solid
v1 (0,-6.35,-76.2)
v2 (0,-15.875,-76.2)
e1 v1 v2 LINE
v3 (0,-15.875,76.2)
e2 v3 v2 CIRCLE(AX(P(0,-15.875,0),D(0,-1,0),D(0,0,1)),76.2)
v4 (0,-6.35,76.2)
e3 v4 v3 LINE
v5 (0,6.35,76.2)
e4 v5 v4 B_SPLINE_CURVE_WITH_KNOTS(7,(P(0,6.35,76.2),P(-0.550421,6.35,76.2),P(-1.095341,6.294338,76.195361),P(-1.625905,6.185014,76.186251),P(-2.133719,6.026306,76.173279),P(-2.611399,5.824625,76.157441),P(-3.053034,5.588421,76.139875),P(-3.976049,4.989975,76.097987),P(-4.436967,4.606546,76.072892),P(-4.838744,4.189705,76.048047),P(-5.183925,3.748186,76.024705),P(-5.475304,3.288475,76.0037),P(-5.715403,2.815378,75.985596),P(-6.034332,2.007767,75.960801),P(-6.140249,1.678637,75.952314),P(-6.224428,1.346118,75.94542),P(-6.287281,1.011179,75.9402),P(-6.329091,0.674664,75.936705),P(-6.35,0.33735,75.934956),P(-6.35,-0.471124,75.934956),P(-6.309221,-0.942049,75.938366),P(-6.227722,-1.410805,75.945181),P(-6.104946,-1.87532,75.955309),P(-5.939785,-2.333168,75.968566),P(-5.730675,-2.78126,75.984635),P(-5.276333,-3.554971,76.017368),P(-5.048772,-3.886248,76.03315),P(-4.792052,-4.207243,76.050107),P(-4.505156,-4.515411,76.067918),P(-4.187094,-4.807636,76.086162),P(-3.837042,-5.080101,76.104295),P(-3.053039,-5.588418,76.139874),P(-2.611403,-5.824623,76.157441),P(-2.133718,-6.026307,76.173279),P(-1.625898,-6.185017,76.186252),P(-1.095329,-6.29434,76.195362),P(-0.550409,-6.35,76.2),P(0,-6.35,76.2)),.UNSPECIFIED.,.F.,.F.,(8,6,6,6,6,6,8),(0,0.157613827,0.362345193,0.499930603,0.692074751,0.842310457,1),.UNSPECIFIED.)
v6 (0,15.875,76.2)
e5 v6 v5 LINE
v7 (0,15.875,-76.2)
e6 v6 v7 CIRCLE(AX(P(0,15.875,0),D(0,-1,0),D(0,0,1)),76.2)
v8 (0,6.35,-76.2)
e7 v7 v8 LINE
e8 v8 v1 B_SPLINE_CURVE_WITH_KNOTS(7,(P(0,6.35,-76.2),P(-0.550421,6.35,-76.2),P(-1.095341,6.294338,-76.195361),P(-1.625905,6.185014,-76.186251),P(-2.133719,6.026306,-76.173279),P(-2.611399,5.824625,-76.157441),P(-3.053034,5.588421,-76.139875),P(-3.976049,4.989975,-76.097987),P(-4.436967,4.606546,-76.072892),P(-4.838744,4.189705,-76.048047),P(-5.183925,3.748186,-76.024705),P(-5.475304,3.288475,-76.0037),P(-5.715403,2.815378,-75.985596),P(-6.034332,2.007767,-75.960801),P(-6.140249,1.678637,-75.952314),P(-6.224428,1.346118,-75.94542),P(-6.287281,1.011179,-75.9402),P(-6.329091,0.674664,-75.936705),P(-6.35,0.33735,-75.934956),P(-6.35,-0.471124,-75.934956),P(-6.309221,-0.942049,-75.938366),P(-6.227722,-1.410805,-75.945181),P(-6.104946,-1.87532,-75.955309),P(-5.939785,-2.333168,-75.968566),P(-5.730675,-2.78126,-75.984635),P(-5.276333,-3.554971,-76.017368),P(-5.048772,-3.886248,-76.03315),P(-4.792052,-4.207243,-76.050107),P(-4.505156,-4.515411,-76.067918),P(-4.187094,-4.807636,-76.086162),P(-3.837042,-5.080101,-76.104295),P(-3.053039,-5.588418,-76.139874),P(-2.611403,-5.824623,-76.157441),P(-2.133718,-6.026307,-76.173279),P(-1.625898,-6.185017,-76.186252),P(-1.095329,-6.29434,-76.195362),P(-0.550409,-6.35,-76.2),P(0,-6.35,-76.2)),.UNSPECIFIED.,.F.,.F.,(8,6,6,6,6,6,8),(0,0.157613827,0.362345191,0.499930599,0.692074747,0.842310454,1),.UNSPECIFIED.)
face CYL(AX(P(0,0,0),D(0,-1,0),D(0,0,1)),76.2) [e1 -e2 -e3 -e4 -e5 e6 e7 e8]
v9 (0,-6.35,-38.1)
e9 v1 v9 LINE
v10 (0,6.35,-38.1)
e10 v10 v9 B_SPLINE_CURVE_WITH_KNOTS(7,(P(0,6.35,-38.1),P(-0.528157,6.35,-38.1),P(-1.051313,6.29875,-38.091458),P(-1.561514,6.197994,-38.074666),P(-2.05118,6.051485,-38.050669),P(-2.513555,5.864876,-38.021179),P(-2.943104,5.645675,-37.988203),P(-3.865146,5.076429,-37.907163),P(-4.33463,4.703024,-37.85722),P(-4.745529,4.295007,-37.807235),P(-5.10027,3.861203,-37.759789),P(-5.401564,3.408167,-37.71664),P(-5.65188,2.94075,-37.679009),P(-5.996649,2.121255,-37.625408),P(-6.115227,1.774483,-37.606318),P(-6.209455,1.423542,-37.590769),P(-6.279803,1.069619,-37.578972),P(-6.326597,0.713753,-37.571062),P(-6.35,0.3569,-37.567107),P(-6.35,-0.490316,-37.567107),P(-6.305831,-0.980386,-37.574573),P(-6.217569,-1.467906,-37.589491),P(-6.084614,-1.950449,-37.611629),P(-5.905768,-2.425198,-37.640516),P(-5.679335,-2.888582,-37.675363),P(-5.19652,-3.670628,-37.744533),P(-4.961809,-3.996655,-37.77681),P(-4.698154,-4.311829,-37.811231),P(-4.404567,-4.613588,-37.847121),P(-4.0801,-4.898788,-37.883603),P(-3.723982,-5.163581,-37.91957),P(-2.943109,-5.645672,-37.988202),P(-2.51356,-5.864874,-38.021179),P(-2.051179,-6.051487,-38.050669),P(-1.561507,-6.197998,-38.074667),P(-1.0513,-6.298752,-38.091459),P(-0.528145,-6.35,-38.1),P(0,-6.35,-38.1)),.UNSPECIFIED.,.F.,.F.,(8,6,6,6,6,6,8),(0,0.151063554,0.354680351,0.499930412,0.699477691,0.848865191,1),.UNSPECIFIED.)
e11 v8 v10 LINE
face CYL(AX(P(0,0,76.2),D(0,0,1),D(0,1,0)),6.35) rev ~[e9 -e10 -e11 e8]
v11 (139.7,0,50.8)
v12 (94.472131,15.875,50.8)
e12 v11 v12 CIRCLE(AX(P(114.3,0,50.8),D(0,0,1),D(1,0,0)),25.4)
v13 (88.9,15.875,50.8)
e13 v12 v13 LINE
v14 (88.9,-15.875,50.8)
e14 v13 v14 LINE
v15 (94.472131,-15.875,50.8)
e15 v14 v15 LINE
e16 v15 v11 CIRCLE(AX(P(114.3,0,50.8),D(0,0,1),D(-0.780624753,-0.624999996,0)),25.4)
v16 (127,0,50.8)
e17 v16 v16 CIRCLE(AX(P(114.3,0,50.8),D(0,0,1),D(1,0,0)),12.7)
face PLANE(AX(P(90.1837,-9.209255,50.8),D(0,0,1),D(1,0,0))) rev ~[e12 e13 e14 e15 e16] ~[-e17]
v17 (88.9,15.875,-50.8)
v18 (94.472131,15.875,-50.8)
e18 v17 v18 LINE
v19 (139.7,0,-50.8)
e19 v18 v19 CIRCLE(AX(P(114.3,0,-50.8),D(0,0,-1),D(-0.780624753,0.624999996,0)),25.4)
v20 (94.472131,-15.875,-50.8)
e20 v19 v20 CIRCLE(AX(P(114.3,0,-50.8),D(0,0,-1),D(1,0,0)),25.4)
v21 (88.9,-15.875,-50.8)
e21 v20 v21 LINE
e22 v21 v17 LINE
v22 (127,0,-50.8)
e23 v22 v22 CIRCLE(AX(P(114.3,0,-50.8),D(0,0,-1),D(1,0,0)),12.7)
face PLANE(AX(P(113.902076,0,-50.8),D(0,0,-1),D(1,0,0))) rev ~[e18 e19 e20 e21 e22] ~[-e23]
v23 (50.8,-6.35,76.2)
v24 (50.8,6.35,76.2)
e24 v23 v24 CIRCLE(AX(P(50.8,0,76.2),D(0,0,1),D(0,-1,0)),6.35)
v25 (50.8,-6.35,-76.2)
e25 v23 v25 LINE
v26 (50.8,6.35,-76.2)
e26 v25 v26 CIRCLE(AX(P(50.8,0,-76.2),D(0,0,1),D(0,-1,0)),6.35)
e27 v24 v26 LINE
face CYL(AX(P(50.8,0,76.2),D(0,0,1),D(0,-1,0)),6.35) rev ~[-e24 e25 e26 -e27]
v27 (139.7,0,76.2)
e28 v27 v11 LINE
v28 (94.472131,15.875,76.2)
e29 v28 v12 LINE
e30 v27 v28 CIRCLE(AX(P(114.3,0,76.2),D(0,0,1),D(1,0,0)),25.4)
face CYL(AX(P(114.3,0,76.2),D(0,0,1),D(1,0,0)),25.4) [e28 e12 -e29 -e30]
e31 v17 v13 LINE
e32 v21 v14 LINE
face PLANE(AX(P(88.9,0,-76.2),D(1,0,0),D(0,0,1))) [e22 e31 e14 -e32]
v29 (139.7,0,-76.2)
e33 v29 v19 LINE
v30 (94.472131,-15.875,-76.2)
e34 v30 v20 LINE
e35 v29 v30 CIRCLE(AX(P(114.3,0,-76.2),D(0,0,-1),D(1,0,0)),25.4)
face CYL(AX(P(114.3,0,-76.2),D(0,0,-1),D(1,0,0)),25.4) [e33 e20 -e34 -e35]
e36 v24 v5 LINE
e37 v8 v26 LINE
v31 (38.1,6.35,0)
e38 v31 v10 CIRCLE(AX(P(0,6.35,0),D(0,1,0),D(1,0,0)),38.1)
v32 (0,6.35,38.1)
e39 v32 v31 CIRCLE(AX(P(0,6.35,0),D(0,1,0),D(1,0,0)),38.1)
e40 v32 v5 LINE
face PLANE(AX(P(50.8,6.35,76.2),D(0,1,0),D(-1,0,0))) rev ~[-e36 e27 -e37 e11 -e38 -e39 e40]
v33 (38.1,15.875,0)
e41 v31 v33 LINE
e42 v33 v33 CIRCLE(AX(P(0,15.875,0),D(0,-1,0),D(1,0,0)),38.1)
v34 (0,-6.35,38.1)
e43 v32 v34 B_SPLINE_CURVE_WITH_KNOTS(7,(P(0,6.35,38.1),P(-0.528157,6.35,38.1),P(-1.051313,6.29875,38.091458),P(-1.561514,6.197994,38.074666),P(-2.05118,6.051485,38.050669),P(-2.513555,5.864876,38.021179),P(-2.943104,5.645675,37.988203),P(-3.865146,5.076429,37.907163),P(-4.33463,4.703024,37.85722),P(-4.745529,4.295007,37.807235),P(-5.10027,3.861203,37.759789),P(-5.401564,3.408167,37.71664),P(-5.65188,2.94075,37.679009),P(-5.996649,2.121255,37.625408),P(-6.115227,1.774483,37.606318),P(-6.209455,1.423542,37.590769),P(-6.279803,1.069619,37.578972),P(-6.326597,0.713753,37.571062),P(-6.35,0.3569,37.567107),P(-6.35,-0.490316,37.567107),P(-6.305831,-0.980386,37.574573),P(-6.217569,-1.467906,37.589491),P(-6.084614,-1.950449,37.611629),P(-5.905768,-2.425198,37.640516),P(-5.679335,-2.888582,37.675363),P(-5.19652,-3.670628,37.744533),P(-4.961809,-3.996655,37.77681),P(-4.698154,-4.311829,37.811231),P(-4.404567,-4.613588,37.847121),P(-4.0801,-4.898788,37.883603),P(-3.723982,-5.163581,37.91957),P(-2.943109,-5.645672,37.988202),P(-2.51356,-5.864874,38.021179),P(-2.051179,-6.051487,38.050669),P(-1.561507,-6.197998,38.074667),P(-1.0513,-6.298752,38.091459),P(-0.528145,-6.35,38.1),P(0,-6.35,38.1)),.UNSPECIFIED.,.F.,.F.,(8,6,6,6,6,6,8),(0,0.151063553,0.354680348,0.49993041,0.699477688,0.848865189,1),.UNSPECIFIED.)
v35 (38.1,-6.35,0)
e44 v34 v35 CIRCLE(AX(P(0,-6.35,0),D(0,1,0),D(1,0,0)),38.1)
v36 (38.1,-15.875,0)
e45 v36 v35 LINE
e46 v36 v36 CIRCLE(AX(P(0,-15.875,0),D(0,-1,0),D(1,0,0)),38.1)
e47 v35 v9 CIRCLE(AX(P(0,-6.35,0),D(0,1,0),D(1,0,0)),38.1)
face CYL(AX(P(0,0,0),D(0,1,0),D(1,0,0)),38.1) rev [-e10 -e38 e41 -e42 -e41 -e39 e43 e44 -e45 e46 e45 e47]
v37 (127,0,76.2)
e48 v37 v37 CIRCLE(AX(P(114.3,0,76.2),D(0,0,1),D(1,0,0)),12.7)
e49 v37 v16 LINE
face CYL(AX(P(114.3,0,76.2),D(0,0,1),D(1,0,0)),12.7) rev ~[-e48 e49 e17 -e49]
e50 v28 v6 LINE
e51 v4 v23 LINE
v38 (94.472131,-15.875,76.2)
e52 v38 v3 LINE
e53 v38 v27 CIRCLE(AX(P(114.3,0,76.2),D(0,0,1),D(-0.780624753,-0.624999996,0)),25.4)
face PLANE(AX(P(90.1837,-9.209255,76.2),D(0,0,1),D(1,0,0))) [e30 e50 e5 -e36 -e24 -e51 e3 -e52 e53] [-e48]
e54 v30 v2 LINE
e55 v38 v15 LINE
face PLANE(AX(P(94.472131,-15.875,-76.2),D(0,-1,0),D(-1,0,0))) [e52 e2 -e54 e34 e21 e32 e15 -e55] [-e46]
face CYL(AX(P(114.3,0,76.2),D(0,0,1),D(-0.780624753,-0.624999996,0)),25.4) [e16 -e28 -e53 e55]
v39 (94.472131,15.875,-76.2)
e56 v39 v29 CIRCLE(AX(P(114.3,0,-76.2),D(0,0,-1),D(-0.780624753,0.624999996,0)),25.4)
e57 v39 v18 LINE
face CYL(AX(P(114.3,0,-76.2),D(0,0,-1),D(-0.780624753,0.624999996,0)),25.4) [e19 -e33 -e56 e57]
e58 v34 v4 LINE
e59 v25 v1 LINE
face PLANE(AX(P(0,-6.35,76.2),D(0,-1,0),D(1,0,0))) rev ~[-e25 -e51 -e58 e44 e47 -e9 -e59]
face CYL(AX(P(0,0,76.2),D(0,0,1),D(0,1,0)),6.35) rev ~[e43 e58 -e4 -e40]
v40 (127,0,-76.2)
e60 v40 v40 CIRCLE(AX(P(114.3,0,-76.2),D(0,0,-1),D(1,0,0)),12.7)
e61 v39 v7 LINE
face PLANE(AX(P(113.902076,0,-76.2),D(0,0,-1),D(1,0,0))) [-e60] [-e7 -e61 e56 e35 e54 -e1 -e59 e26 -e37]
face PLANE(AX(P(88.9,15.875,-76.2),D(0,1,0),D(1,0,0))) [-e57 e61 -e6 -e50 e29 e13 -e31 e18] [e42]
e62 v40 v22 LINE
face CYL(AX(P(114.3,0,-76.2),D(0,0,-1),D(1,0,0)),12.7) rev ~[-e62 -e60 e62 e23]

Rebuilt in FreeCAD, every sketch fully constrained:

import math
import FreeCAD as App
import Part
import Sketcher
from FreeCAD import Vector
Q = App.Units.Quantity

doc = App.newDocument("Part")
params = doc.addObject("Spreadsheet::Sheet", "Params")
for row, (alias, value) in enumerate([
    ("sketch1_diameter", "3 in"),
    ("sketch1_radius", "3 in"),
    ("sketch1_width", "3.5 in"),
    ("pad1_length", "1.25 in"),
    ("sketch2_width", "2 in"),
    ("sketch2_radius", "0.25 in"),
    ("pocket1_length", "477.00304 mm"),
    ("sketch3_diameter", "1 in"),
    ("sketch3_radius", "1 in"),
    ("sketch3_height", "1.25 in"),
    ("pad2_length", "1 in"),
    ("sketch4_diameter", "1 in"),
    ("sketch4_radius", "1 in"),
    ("sketch4_height", "1.25 in"),
    ("pad3_length", "1 in"),
], start=1):
    params.set(f"A{row}", alias)
    params.set(f"B{row}", "=" + value)
    params.setAlias(f"B{row}", alias)

body = doc.addObject("PartDesign::Body", "Body")

# Sketch on XZ plane
sketch1 = body.newObject("Sketcher::SketchObject", "Sketch")
sketch1.AttachmentSupport = (doc.getObject("XZ_Plane"), [""])
sketch1.MapMode = "FlatFace"
sketch1.addGeometry([
    Part.LineSegment(Vector(89, 76, 0), Vector(0, 76, 0)),  # 0
    Part.ArcOfCircle(Part.Circle(Vector(0, 0, 0), Vector(0, 0, 1), 76), math.radians(90), math.radians(270)),  # 1
    Part.LineSegment(Vector(0, -76, 0), Vector(89, -76, 0)),  # 2
    Part.LineSegment(Vector(89, -76, 0), Vector(89, 76, 0)),  # 3
    Part.Circle(Vector(0, 0, 0), Vector(0, 0, 1), 38),  # 4
], False)
sketch1.addConstraint([
    Sketcher.Constraint("Tangent", 0, 2, 1, 1),
    Sketcher.Constraint("Tangent", 1, 2, 2, 1),
    Sketcher.Constraint("Coincident", 2, 2, 3, 1),
    Sketcher.Constraint("Coincident", 3, 2, 0, 1),
    Sketcher.Constraint("Horizontal", 0),
    Sketcher.Constraint("Horizontal", 2),
    Sketcher.Constraint("Vertical", 3),
    Sketcher.Constraint("Coincident", 1, 3, -1, 1),
    Sketcher.Constraint("Coincident", 4, 3, -1, 1),
    Sketcher.Constraint("Diameter", 4, Q("3 in")),
    Sketcher.Constraint("Radius", 1, Q("3 in")),
    Sketcher.Constraint("DistanceX", 0, 2, 0, 1, Q("3.5 in")),
])
sketch1.setExpression("Constraints[9]", "Params.sketch1_diameter")
sketch1.setExpression("Constraints[10]", "Params.sketch1_radius")
sketch1.setExpression("Constraints[11]", "Params.sketch1_width")
pad1 = body.newObject("PartDesign::Pad", "Pad")
pad1.Profile = sketch1
pad1.setExpression("Length", "Params.pad1_length")
pad1.Midplane = True

# Sketch on XY plane
sketch2 = body.newObject("Sketcher::SketchObject", "Sketch001")
sketch2.AttachmentSupport = (doc.getObject("XY_Plane"), [""])
sketch2.MapMode = "FlatFace"
sketch2.AttachmentOffset = App.Placement(Vector(0, 0, 3 * 25.4), App.Rotation())
sketch2.addGeometry([
    Part.LineSegment(Vector(51, 6, 0), Vector(0, 6, 0)),
    Part.ArcOfCircle(Part.Circle(Vector(0, 0, 0), Vector(0, 0, 1), 6), math.radians(90), math.radians(270)),
    Part.LineSegment(Vector(0, -6, 0), Vector(51, -6, 0)),
    Part.ArcOfCircle(Part.Circle(Vector(51, 0, 0), Vector(0, 0, 1), 6), math.radians(-90), math.radians(90)),
], False)
sketch2.addConstraint([
    Sketcher.Constraint("Tangent", 0, 2, 1, 1),
    Sketcher.Constraint("Tangent", 1, 2, 2, 1),
    Sketcher.Constraint("Tangent", 2, 2, 3, 1),
    Sketcher.Constraint("Tangent", 3, 2, 0, 1),
    Sketcher.Constraint("Horizontal", 0),
    Sketcher.Constraint("Horizontal", 2),
    Sketcher.Constraint("Coincident", 1, 3, -1, 1),
    Sketcher.Constraint("DistanceX", 0, 2, 0, 1, Q("2 in")),
    Sketcher.Constraint("Radius", 1, Q("0.25 in")),
])
sketch2.setExpression("Constraints[7]", "Params.sketch2_width")
sketch2.setExpression("Constraints[8]", "Params.sketch2_radius")
pocket1 = body.newObject("PartDesign::Pocket", "Pocket")
pocket1.Profile = sketch2
pocket1.setExpression("Length", "Params.pocket1_length")
pocket1.Midplane = True

# Sketch on XY plane
sketch3 = body.newObject("Sketcher::SketchObject", "Sketch002")
sketch3.AttachmentSupport = (doc.getObject("XY_Plane"), [""])
sketch3.MapMode = "FlatFace"
sketch3.AttachmentOffset = App.Placement(Vector(0, 0, 3 * 25.4), App.Rotation())
sketch3.addGeometry([
    Part.LineSegment(Vector(89, -16, 0), Vector(94, -16, 0)),  # 0
    Part.ArcOfCircle(Part.Circle(Vector(114, 0, 0), Vector(0, 0, 1), 25), math.radians(-141), math.radians(0)),  # 1
    Part.ArcOfCircle(Part.Circle(Vector(114, 0, 0), Vector(0, 0, 1), 25), math.radians(0), math.radians(141)),  # 2
    Part.LineSegment(Vector(94, 16, 0), Vector(89, 16, 0)),  # 3
    Part.LineSegment(Vector(89, 16, 0), Vector(89, -16, 0)),  # 4
    Part.Circle(Vector(114, 0, 0), Vector(0, 0, 1), 13),  # 5
], False)
sketch3.addConstraint([
    Sketcher.Constraint("Coincident", 0, 2, 1, 1),
    Sketcher.Constraint("Tangent", 1, 2, 2, 1),
    Sketcher.Constraint("Coincident", 2, 2, 3, 1),
    Sketcher.Constraint("Coincident", 3, 2, 4, 1),
    Sketcher.Constraint("Coincident", 4, 2, 0, 1),
    Sketcher.Constraint("Horizontal", 0),
    Sketcher.Constraint("Horizontal", 3),
    Sketcher.Constraint("Vertical", 4),
    Sketcher.Constraint("Coincident", 5, 3, 1, 3),
    Sketcher.Constraint("Equal", 1, 2),
    Sketcher.Constraint("Symmetric", 0, 2, 2, 2, -1),
    Sketcher.Constraint("PointOnObject", 1, 2, -1),
    Sketcher.Constraint("Diameter", 5, Q("1 in")),
    Sketcher.Constraint("Radius", 1, Q("1 in")),
    Sketcher.Constraint("DistanceX", 3, 2, 1, 3, Q("1 in")),
    Sketcher.Constraint("DistanceY", 4, 2, 4, 1, Q("1.25 in")),
    Sketcher.Constraint("DistanceX", -1, 1, 1, 3, Q("4.5 in")),
])
sketch3.setExpression("Constraints[12]", "Params.sketch3_diameter")
sketch3.setExpression("Constraints[13]", "Params.sketch3_radius")
sketch3.setExpression("Constraints[15]", "Params.sketch3_height")
pad2 = body.newObject("PartDesign::Pad", "Pad001")
pad2.Profile = sketch3
pad2.setExpression("Length", "Params.pad2_length")
pad2.Reversed = True

# Sketch on XY plane
sketch4 = body.newObject("Sketcher::SketchObject", "Sketch003")
sketch4.AttachmentSupport = (doc.getObject("XY_Plane"), [""])
sketch4.MapMode = "FlatFace"
sketch4.AttachmentOffset = App.Placement(Vector(0, 0, -3 * 25.4), App.Rotation())
sketch4.addGeometry([
    Part.ArcOfCircle(Part.Circle(Vector(114, 0, 0), Vector(0, 0, 1), 25), math.radians(0), math.radians(141)),  # 0
    Part.ArcOfCircle(Part.Circle(Vector(114, 0, 0), Vector(0, 0, 1), 25), math.radians(-141), math.radians(0)),  # 1
    Part.LineSegment(Vector(94, -16, 0), Vector(89, -16, 0)),  # 2
    Part.LineSegment(Vector(89, -16, 0), Vector(89, 16, 0)),  # 3
    Part.LineSegment(Vector(89, 16, 0), Vector(94, 16, 0)),  # 4
    Part.Circle(Vector(114, 0, 0), Vector(0, 0, 1), 13),  # 5
], False)
sketch4.addConstraint([
    Sketcher.Constraint("Tangent", 0, 1, 1, 2),
    Sketcher.Constraint("Coincident", 1, 1, 2, 1),
    Sketcher.Constraint("Coincident", 2, 2, 3, 1),
    Sketcher.Constraint("Coincident", 3, 2, 4, 1),
    Sketcher.Constraint("Coincident", 4, 2, 0, 2),
    Sketcher.Constraint("Horizontal", 2),
    Sketcher.Constraint("Vertical", 3),
    Sketcher.Constraint("Horizontal", 4),
    Sketcher.Constraint("Coincident", 5, 3, 0, 3),
    Sketcher.Constraint("Equal", 0, 1),
    Sketcher.Constraint("Symmetric", 1, 1, 4, 2, -1),
    Sketcher.Constraint("PointOnObject", 0, 1, -1),
    Sketcher.Constraint("Diameter", 5, Q("1 in")),
    Sketcher.Constraint("Radius", 0, Q("1 in")),
    Sketcher.Constraint("DistanceX", 2, 2, 0, 3, Q("1 in")),
    Sketcher.Constraint("DistanceY", 3, 1, 3, 2, Q("1.25 in")),
    Sketcher.Constraint("DistanceX", -1, 1, 0, 3, Q("4.5 in")),
])
sketch4.setExpression("Constraints[12]", "Params.sketch4_diameter")
sketch4.setExpression("Constraints[13]", "Params.sketch4_radius")
sketch4.setExpression("Constraints[15]", "Params.sketch4_height")
pad3 = body.newObject("PartDesign::Pad", "Pad002")
pad3.Profile = sketch4
pad3.setExpression("Length", "Params.pad3_length")

doc.recompute()
